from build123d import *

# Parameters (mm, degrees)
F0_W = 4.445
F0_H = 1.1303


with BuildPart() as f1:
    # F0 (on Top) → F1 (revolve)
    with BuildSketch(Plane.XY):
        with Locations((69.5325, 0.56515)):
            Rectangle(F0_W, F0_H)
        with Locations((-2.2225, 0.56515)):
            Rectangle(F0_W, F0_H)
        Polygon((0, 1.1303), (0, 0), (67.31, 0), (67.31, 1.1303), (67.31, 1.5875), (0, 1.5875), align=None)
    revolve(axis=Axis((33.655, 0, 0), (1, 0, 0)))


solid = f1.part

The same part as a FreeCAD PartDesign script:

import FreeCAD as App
import Part
import Sketcher
Q = App.Units.Quantity

doc = App.newDocument("Part")
body = doc.addObject("PartDesign::Body", "Body")

# Sketch on XY plane
sketch1 = body.newObject("Sketcher::SketchObject", "Sketch")
sketch1.AttachmentSupport = (doc.getObject("XY_Plane"), [""])
sketch1.MapMode = "FlatFace"
sketch1.addGeometry([
    Part.LineSegment(App.Vector(71.75, 0, 0), App.Vector(71.75, 1.13, 0)),  # 0
    Part.LineSegment(App.Vector(71.75, 1.13, 0), App.Vector(67.31, 1.13, 0)),  # 1
    Part.LineSegment(App.Vector(67.31, 1.13, 0), App.Vector(67.31, 1.59, 0)),  # 2
    Part.LineSegment(App.Vector(67.31, 1.59, 0), App.Vector(0, 1.59, 0)),  # 3
    Part.LineSegment(App.Vector(0, 1.59, 0), App.Vector(0, 1.13, 0)),  # 4
    Part.LineSegment(App.Vector(0, 1.13, 0), App.Vector(-4.45, 1.13, 0)),  # 5
    Part.LineSegment(App.Vector(-4.45, 1.13, 0), App.Vector(-4.45, 0, 0)),  # 6
    Part.LineSegment(App.Vector(-4.45, 0, 0), App.Vector(71.75, 0, 0)),  # 7
], False)
sketch1.addConstraint([
    Sketcher.Constraint("Coincident", 0, 2, 1, 1),
    Sketcher.Constraint("Coincident", 1, 2, 2, 1),
    Sketcher.Constraint("Coincident", 2, 2, 3, 1),
    Sketcher.Constraint("Coincident", 3, 2, 4, 1),
    Sketcher.Constraint("Coincident", 4, 2, 5, 1),
    Sketcher.Constraint("Coincident", 5, 2, 6, 1),
    Sketcher.Constraint("Coincident", 6, 2, 7, 1),
    Sketcher.Constraint("Coincident", 7, 2, 0, 1),
    Sketcher.Constraint("Vertical", 0),
    Sketcher.Constraint("Horizontal", 1),
    Sketcher.Constraint("Vertical", 2),
    Sketcher.Constraint("Horizontal", 3),
    Sketcher.Constraint("Vertical", 4),
    Sketcher.Constraint("Horizontal", 5),
    Sketcher.Constraint("Vertical", 6),
    Sketcher.Constraint("Horizontal", 7),
    Sketcher.Constraint("PointOnObject", 3, 2, -2),
    Sketcher.Constraint("PointOnObject", 6, 2, -1),
    Sketcher.Constraint("Horizontal", 1, 2, 4, 2),
    Sketcher.Constraint("Equal", 1, 5),
    Sketcher.Constraint("DistanceX", 7, 1, 7, 2, Q("3 in")),
    Sketcher.Constraint("DistanceX", 3, 2, 3, 1, Q("2.65 in")),
    Sketcher.Constraint("DistanceY", 2, 1, 2, 2, Q("0.018 in")),
    Sketcher.Constraint("DistanceY", 0, 1, 0, 2, Q("0.0445 in")),
])
revolution = body.newObject("PartDesign::Revolution", "Revolution")
revolution.Profile = sketch1
revolution.ReferenceAxis = (sketch1, ["H_Axis"])
revolution.Angle = 360

doc.recompute()
